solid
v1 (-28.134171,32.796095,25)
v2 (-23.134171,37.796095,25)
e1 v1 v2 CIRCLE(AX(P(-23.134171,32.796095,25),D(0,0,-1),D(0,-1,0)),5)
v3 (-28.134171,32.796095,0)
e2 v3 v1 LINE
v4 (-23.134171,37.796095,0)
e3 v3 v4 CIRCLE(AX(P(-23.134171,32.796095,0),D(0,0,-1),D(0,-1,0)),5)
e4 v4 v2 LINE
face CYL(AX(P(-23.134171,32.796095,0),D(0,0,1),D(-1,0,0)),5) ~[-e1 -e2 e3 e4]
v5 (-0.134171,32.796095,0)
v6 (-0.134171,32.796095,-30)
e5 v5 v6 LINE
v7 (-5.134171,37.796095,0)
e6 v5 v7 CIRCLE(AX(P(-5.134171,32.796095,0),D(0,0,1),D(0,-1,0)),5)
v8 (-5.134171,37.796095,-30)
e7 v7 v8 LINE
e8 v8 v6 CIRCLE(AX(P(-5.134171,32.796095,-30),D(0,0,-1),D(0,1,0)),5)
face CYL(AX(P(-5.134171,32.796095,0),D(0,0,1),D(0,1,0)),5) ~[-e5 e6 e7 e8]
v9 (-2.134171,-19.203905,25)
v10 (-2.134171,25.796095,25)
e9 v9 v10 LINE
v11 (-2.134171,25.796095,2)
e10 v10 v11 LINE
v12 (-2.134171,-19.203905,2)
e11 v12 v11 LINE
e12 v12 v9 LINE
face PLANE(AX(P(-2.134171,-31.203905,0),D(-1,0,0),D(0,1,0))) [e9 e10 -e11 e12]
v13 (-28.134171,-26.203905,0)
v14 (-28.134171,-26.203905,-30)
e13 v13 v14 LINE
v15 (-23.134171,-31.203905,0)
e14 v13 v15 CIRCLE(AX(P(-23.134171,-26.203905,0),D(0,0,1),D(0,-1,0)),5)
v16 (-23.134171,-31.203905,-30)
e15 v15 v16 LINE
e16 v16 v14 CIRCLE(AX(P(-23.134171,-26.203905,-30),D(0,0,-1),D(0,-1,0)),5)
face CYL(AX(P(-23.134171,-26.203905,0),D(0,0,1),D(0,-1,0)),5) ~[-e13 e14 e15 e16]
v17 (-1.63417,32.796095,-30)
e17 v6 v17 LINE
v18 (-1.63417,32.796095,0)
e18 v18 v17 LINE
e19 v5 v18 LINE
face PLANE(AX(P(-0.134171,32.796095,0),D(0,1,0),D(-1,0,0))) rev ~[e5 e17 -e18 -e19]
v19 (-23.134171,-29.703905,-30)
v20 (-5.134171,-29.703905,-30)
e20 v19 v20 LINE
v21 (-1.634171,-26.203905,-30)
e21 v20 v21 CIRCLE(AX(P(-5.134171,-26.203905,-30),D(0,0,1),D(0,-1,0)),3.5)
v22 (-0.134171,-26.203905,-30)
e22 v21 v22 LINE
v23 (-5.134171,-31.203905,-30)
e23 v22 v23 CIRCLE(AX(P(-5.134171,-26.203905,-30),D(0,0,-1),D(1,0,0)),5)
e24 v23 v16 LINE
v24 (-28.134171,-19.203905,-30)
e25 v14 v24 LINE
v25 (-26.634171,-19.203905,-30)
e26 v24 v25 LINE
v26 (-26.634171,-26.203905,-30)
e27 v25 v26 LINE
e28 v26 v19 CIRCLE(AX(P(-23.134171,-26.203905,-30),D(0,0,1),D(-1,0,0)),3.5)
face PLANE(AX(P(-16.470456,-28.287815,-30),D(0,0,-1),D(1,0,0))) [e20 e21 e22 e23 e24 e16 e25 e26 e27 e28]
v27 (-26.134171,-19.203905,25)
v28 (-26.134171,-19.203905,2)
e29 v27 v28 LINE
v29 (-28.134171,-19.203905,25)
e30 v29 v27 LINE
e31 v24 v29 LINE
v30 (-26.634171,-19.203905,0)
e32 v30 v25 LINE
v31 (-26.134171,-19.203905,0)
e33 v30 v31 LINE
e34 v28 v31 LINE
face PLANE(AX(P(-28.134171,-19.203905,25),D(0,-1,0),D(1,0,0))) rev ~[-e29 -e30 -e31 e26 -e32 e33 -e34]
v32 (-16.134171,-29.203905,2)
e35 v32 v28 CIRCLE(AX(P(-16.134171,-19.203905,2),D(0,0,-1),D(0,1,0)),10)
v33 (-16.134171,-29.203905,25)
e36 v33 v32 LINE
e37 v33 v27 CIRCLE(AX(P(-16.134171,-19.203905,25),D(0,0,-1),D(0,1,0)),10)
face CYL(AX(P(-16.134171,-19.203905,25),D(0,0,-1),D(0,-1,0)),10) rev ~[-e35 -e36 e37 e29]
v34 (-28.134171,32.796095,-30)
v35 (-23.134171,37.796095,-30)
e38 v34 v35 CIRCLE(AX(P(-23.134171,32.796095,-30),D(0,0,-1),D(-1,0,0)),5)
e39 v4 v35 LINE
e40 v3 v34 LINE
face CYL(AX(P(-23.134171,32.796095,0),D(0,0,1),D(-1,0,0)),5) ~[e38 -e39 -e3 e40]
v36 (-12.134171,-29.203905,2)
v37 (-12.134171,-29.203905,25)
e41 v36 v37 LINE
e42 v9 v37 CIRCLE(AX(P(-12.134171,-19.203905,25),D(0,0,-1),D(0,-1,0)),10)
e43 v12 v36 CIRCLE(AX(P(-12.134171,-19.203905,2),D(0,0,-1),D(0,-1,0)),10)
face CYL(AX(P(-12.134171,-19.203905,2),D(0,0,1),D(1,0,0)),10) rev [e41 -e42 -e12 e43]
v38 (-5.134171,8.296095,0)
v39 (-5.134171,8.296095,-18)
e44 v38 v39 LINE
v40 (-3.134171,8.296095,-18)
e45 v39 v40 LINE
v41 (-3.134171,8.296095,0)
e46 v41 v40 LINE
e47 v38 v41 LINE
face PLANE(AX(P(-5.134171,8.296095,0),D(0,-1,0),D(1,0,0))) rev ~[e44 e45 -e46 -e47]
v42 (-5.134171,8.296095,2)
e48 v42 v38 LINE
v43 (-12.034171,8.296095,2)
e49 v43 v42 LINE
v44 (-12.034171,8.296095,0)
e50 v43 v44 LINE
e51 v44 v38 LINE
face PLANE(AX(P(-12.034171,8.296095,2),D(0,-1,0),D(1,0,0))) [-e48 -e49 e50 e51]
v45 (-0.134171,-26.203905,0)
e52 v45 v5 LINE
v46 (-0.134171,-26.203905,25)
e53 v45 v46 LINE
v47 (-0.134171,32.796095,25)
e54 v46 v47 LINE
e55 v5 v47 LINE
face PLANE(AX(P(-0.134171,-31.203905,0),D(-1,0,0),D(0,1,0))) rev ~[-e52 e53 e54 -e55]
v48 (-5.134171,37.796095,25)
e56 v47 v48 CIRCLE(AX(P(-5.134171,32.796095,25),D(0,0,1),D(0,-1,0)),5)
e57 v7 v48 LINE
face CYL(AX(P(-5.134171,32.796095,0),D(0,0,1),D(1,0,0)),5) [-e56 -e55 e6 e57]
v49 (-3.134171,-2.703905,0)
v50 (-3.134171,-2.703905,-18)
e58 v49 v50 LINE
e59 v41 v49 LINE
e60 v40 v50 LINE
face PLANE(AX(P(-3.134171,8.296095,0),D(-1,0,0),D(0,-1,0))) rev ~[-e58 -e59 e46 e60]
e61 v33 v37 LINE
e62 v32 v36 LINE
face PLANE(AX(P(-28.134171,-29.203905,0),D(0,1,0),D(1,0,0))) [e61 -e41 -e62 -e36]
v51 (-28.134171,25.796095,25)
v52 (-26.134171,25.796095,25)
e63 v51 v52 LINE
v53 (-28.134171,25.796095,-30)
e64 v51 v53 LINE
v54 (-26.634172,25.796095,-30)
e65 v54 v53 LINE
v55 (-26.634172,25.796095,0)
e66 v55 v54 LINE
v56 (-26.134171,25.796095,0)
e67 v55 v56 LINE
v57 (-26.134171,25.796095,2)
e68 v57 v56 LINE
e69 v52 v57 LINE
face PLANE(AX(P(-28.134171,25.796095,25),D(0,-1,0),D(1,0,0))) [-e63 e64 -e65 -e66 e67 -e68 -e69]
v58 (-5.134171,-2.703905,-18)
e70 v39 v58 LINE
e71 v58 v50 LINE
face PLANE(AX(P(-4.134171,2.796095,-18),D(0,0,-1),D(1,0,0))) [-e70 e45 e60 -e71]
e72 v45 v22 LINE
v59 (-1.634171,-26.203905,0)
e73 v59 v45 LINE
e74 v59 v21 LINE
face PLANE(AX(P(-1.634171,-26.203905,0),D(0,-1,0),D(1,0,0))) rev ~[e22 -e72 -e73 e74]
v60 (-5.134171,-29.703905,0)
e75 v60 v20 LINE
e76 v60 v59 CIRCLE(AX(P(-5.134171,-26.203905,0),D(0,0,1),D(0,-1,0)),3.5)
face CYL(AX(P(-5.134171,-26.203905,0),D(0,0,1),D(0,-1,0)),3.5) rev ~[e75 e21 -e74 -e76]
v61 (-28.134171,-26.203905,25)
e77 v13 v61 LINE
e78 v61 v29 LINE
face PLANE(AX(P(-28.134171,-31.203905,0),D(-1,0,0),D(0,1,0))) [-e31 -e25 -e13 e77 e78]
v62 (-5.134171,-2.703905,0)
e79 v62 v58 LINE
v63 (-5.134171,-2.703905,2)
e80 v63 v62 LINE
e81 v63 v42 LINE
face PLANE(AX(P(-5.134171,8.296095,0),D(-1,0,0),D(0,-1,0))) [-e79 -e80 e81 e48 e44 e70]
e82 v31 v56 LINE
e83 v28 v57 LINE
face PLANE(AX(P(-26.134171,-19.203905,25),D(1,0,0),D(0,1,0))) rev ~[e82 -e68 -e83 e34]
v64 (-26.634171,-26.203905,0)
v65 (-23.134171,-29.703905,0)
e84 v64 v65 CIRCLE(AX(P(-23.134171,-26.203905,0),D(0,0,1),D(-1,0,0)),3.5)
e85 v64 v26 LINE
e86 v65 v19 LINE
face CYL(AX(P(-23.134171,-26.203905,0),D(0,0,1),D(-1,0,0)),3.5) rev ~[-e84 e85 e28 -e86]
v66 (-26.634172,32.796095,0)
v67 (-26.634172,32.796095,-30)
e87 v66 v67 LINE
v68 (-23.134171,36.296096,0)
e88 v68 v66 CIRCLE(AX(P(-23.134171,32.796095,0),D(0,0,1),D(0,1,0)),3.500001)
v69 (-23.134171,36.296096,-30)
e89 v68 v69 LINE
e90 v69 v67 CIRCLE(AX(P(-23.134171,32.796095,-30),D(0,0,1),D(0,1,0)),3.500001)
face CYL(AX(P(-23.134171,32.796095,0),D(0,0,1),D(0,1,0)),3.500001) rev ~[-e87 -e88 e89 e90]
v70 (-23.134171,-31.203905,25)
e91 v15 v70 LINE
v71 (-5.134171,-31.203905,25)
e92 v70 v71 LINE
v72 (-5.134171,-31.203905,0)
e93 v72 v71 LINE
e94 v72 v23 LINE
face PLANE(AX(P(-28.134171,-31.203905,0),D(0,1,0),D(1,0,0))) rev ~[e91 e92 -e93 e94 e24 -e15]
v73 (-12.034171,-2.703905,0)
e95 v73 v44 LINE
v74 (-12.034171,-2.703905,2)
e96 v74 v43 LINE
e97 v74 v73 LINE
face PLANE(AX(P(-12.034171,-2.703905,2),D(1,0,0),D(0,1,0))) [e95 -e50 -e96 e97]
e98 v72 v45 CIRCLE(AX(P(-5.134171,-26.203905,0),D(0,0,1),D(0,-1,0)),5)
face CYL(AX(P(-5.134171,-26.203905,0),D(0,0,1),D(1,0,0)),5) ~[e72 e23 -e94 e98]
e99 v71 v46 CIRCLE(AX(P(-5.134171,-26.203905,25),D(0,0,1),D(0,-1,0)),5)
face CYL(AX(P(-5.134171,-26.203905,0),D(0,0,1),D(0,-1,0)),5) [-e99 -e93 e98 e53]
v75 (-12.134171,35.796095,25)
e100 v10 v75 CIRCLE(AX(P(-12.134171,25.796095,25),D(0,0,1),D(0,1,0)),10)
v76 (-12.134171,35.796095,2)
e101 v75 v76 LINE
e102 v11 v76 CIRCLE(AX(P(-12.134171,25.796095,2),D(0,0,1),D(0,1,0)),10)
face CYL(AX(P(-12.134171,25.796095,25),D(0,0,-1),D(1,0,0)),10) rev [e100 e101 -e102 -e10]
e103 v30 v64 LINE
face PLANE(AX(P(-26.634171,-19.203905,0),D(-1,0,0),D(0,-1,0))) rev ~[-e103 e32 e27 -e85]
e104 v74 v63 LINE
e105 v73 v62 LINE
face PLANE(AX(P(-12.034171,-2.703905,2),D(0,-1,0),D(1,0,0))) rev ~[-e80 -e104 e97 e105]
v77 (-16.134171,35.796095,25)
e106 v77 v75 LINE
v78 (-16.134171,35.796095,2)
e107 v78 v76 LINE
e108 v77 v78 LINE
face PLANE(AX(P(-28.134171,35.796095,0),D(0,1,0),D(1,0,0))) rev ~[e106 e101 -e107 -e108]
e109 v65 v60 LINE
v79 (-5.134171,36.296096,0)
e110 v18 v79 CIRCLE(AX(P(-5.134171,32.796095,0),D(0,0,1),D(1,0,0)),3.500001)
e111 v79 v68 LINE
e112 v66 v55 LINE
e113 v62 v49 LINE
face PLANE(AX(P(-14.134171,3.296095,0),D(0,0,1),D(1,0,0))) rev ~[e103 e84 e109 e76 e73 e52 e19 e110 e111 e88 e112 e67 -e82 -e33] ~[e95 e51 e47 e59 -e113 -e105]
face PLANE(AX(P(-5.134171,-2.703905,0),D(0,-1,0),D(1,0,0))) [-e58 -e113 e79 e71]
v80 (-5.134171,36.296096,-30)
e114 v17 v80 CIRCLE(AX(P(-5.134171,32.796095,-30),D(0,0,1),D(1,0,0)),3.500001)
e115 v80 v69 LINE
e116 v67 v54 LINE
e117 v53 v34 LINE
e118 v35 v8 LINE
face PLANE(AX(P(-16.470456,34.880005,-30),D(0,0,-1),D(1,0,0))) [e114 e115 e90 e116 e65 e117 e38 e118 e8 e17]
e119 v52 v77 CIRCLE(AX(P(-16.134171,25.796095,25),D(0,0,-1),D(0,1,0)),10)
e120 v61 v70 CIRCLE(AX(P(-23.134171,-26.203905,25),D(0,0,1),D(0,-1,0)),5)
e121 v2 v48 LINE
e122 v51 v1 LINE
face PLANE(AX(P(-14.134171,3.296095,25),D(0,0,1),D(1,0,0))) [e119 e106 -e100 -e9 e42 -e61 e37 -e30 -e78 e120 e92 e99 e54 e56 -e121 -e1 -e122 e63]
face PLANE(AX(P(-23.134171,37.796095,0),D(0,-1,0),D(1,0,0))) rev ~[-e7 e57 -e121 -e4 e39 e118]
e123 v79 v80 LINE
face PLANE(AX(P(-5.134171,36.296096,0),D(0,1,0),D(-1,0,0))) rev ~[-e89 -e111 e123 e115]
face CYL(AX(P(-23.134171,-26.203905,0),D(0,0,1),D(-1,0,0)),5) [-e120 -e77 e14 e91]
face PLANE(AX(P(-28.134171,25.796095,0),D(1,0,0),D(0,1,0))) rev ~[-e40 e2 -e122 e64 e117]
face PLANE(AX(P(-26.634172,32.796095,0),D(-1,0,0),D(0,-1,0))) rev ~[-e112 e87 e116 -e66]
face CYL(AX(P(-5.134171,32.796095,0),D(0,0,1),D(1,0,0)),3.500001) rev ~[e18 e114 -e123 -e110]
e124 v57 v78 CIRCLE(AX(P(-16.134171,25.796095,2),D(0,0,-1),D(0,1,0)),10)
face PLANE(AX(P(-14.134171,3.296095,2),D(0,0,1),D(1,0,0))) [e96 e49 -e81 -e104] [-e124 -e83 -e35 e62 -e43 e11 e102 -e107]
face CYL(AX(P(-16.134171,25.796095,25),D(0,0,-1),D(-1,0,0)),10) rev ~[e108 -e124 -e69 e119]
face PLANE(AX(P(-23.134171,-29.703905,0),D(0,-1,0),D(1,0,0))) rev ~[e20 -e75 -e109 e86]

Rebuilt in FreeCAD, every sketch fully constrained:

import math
import FreeCAD as App
import Part
import Sketcher
from FreeCAD import Vector
Q = App.Units.Quantity


def edges_at(feature, points):
    """Names of the edges that pass closest to the given points."""
    edges = feature.Shape.Edges
    near = lambda p: min(range(len(edges)), key=lambda i: edges[i].distToShape(Part.Vertex(*p))[0])
    return sorted({f"Edge{near(p) + 1}" for p in points})


def faces_at(feature, points):
    """Names of the faces that lie closest to the given points."""
    faces = feature.Shape.Faces
    near = lambda p: min(range(len(faces)), key=lambda i: faces[i].distToShape(Part.Vertex(*p))[0])
    return sorted({f"Face{near(p) + 1}" for p in points})


def add_polygon(sketch, points):
    """Adds a closed chain of lines whose ends are joined by coincident constraints."""
    first, n = sketch.GeometryCount, len(points)
    for a, b in zip(points, points[1:] + points[:1]):
        sketch.addGeometry(Part.LineSegment(App.Vector(*a, 0), App.Vector(*b, 0)), False)
    for i in range(n):
        sketch.addConstraint(Sketcher.Constraint("Coincident", first + i, 2, first + (i + 1) % n, 1))

doc = App.newDocument("Part")
body = doc.addObject("PartDesign::Body", "Body")

sketch1 = doc.addObject("Sketcher::SketchObject", "Sketch")
body.addObject(sketch1)
sketch1.AttachmentSupport = (doc.XY_Plane, [""])
sketch1.MapMode = "FlatFace"
add_polygon(sketch1, [(-28.134171, 37.796095), (-28.134171, -31.203905), (-0.134171, -31.203905), (-0.134171, 37.796095)])
sketch1.addConstraint(Sketcher.Constraint("Vertical", 0))
sketch1.addConstraint(Sketcher.Constraint("Horizontal", 1))
sketch1.addConstraint(Sketcher.Constraint("Vertical", 2))
sketch1.addConstraint(Sketcher.Constraint("Horizontal", 3))
sketch1.addConstraint(Sketcher.Constraint("DistanceX", 1, 1, 1, 2, Q("28 mm")))
sketch1.addConstraint(Sketcher.Constraint("DistanceY", 0, 2, 0, 1, Q("69 mm")))
sketch1.addConstraint(Sketcher.Constraint("DistanceX", 0, 2, -1, 1, Q("28.134171 mm")))
sketch1.addConstraint(Sketcher.Constraint("DistanceY", 0, 2, -1, 1, Q("31.203905 mm")))
pad1 = doc.addObject("PartDesign::Pad", "Pad")
body.addObject(pad1)
pad1.Profile = sketch1
pad1.Length = 25
doc.recompute()

thickness = doc.addObject("PartDesign::Thickness", "Thickness")
body.addObject(thickness)
thickness.Base = (pad1, faces_at(pad1, [(-14.134, 3.296, 25)]))
thickness.Value = 2
thickness.Reversed = True
thickness.Join = "Arc"
doc.recompute()

fillet = doc.addObject("PartDesign::Fillet", "Fillet")
body.addObject(fillet)
fillet.Base = (thickness, edges_at(thickness, [
    (-0.134, -31.204, 12.5),
    (-28.134, -31.204, 12.5),
    (-0.134, 37.796, 12.5),
    (-28.134, 37.796, 12.5),
]))
fillet.Radius = 5
doc.recompute()

fillet2 = doc.addObject("PartDesign::Fillet", "Fillet001")
body.addObject(fillet2)
fillet2.Base = (fillet, edges_at(fillet, [
    (-26.134, 35.796, 13.5),
    (-26.134, -29.204, 13.5),
    (-2.134, -29.204, 13.5),
    (-2.134, 35.796, 13.5),
]))
fillet2.Radius = 10

sketch2 = doc.addObject("Sketcher::SketchObject", "Sketch001")
body.addObject(sketch2)
sketch2.AttachmentSupport = (doc.XY_Plane, [""])
sketch2.MapMode = "FlatFace"
sketch2.AttachmentOffset = App.Placement(Vector(0, 0, 2), App.Rotation())
add_polygon(sketch2, [(-12.034171, 8.296095), (-12.034171, -2.703905), (-5.134171, -2.703905), (-5.134171, 8.296095)])
sketch2.addConstraint(Sketcher.Constraint("Vertical", 0))
sketch2.addConstraint(Sketcher.Constraint("Horizontal", 1))
sketch2.addConstraint(Sketcher.Constraint("Vertical", 2))
sketch2.addConstraint(Sketcher.Constraint("Horizontal", 3))
sketch2.addConstraint(Sketcher.Constraint("DistanceY", 0, 2, 0, 1, Q("11 mm")))
sketch2.addConstraint(Sketcher.Constraint("DistanceX", 1, 1, 1, 2, Q("6.9 mm")))
sketch2.addConstraint(Sketcher.Constraint("DistanceX", 0, 2, -1, 1, Q("12.034171 mm")))
sketch2.addConstraint(Sketcher.Constraint("DistanceY", 0, 2, -1, 1, Q("2.703905 mm")))
pocket1 = doc.addObject("PartDesign::Pocket", "Pocket")
body.addObject(pocket1)
pocket1.Profile = sketch2
pocket1.Length = 25

sketch3 = doc.addObject("Sketcher::SketchObject", "Sketch002")
body.addObject(sketch3)
sketch3.AttachmentSupport = (doc.XY_Plane, [""])
sketch3.MapMode = "FlatFace"
sketch3.AttachmentOffset = App.Placement(Vector(0, 0, 25), App.Rotation())
add_polygon(sketch3, [(-28.134171, 25.796095), (-28.134171, -19.203905), (-26.134171, -19.203905), (-26.134171, 25.796095)])
sketch3.addConstraint(Sketcher.Constraint("Vertical", 0))
sketch3.addConstraint(Sketcher.Constraint("Horizontal", 1))
sketch3.addConstraint(Sketcher.Constraint("Vertical", 2))
sketch3.addConstraint(Sketcher.Constraint("Horizontal", 3))
sketch3.addConstraint(Sketcher.Constraint("DistanceX", 1, 1, 1, 2, Q("2 mm")))
sketch3.addConstraint(Sketcher.Constraint("DistanceY", 0, 2, 0, 1, Q("45 mm")))
sketch3.addConstraint(Sketcher.Constraint("DistanceX", 0, 2, -1, 1, Q("28.134171 mm")))
sketch3.addConstraint(Sketcher.Constraint("DistanceY", 0, 2, -1, 1, Q("19.203905 mm")))
pocket2 = doc.addObject("PartDesign::Pocket", "Pocket001")
body.addObject(pocket2)
pocket2.Profile = sketch3
pocket2.Length = 25

sketch4 = doc.addObject("Sketcher::SketchObject", "Sketch003")
body.addObject(sketch4)
sketch4.AttachmentSupport = (doc.XY_Plane, [""])
sketch4.MapMode = "FlatFace"
add_polygon(sketch4, [(-5.134171, -2.703905), (-5.134171, 8.296095), (-3.134171, 8.296095), (-3.134171, -2.703905)])
sketch4.addConstraint(Sketcher.Constraint("Vertical", 0))
sketch4.addConstraint(Sketcher.Constraint("Horizontal", 1))
sketch4.addConstraint(Sketcher.Constraint("Vertical", 2))
sketch4.addConstraint(Sketcher.Constraint("Horizontal", 3))
sketch4.addConstraint(Sketcher.Constraint("DistanceX", 1, 1, 1, 2, Q("2 mm")))
sketch4.addConstraint(Sketcher.Constraint("DistanceY", 0, 1, 0, 2, Q("11 mm")))
sketch4.addConstraint(Sketcher.Constraint("DistanceX", 0, 2, -1, 1, Q("5.134171 mm")))
sketch4.addConstraint(Sketcher.Constraint("DistanceY", -1, 1, 0, 2, Q("8.296095 mm")))
pad2 = doc.addObject("PartDesign::Pad", "Pad001")
body.addObject(pad2)
pad2.Profile = sketch4
pad2.Length = 18
pad2.Reversed = True

sketch5 = doc.addObject("Sketcher::SketchObject", "Sketch004")
body.addObject(sketch5)
sketch5.AttachmentSupport = (doc.XY_Plane, [""])
sketch5.MapMode = "FlatFace"
sketch5.addGeometry(Part.ArcOfCircle(Part.Circle(Vector(-5.134171, 32.796095, 0), Vector(0, 0, 1), 3.500001), math.radians(0), math.radians(90)), False)
sketch5.addGeometry(Part.LineSegment(Vector(-5.134171, 36.296096, 0), Vector(-23.134171, 36.296096, 0)), False)
sketch5.addGeometry(Part.ArcOfCircle(Part.Circle(Vector(-23.134171, 32.796095, 0), Vector(0, 0, 1), 3.500001), math.radians(90), math.radians(180)), False)
sketch5.addGeometry(Part.LineSegment(Vector(-26.634172, 32.796095, 0), Vector(-26.634172, 25.796095, 0)), False)
sketch5.addGeometry(Part.LineSegment(Vector(-26.634172, 25.796095, 0), Vector(-28.134171, 25.796095, 0)), False)
sketch5.addGeometry(Part.LineSegment(Vector(-28.134171, 25.796095, 0), Vector(-28.134171, 32.796095, 0)), False)
sketch5.addGeometry(Part.ArcOfCircle(Part.Circle(Vector(-23.134171, 32.796095, 0), Vector(0, 0, 1), 5), math.radians(90), math.radians(180)), False)
sketch5.addGeometry(Part.LineSegment(Vector(-23.134171, 37.796095, 0), Vector(-5.134171, 37.796095, 0)), False)
sketch5.addGeometry(Part.ArcOfCircle(Part.Circle(Vector(-5.134171, 32.796095, 0), Vector(0, 0, 1), 5), math.radians(0), math.radians(90)), False)
sketch5.addGeometry(Part.LineSegment(Vector(-0.134171, 32.796095, 0), Vector(-1.63417, 32.796095, 0)), False)
sketch5.addGeometry(Part.LineSegment(Vector(-1.634171, -26.203905, 0), Vector(-0.134171, -26.203905, 0)), False)
sketch5.addGeometry(Part.ArcOfCircle(Part.Circle(Vector(-5.134171, -26.203905, 0), Vector(0, 0, 1), 5), math.radians(-90), math.radians(0)), False)
sketch5.addGeometry(Part.LineSegment(Vector(-5.134171, -31.203905, 0), Vector(-23.134171, -31.203905, 0)), False)
sketch5.addGeometry(Part.ArcOfCircle(Part.Circle(Vector(-23.134171, -26.203905, 0), Vector(0, 0, 1), 5), math.radians(180), math.radians(270)), False)
sketch5.addGeometry(Part.LineSegment(Vector(-28.134171, -26.203905, 0), Vector(-28.134171, -19.203905, 0)), False)
sketch5.addGeometry(Part.LineSegment(Vector(-28.134171, -19.203905, 0), Vector(-26.634171, -19.203905, 0)), False)
sketch5.addGeometry(Part.LineSegment(Vector(-26.634171, -19.203905, 0), Vector(-26.634171, -26.203905, 0)), False)
sketch5.addGeometry(Part.ArcOfCircle(Part.Circle(Vector(-23.134171, -26.203905, 0), Vector(0, 0, 1), 3.5), math.radians(180), math.radians(270)), False)
sketch5.addGeometry(Part.LineSegment(Vector(-23.134171, -29.703905, 0), Vector(-5.134171, -29.703905, 0)), False)
sketch5.addGeometry(Part.ArcOfCircle(Part.Circle(Vector(-5.134171, -26.203905, 0), Vector(0, 0, 1), 3.5), math.radians(-90), math.radians(0)), False)
sketch5.addConstraint(Sketcher.Constraint("Tangent", 0, 2, 1, 1))
sketch5.addConstraint(Sketcher.Constraint("Tangent", 1, 2, 2, 1))
sketch5.addConstraint(Sketcher.Constraint("Tangent", 2, 2, 3, 1))
sketch5.addConstraint(Sketcher.Constraint("Coincident", 3, 2, 4, 1))
sketch5.addConstraint(Sketcher.Constraint("Coincident", 4, 2, 5, 1))
sketch5.addConstraint(Sketcher.Constraint("Tangent", 5, 2, 6, 2))
sketch5.addConstraint(Sketcher.Constraint("Tangent", 6, 1, 7, 1))
sketch5.addConstraint(Sketcher.Constraint("Tangent", 7, 2, 8, 2))
sketch5.addConstraint(Sketcher.Constraint("Coincident", 8, 1, 9, 1))
sketch5.addConstraint(Sketcher.Constraint("Coincident", 9, 2, 0, 1))
sketch5.addConstraint(Sketcher.Constraint("Coincident", 10, 2, 11, 2))
sketch5.addConstraint(Sketcher.Constraint("Tangent", 11, 1, 12, 1))
sketch5.addConstraint(Sketcher.Constraint("Tangent", 12, 2, 13, 2))
sketch5.addConstraint(Sketcher.Constraint("Tangent", 13, 1, 14, 1))
sketch5.addConstraint(Sketcher.Constraint("Coincident", 14, 2, 15, 1))
sketch5.addConstraint(Sketcher.Constraint("Coincident", 15, 2, 16, 1))
sketch5.addConstraint(Sketcher.Constraint("Tangent", 16, 2, 17, 1))
sketch5.addConstraint(Sketcher.Constraint("Tangent", 17, 2, 18, 1))
sketch5.addConstraint(Sketcher.Constraint("Tangent", 18, 2, 19, 1))
sketch5.addConstraint(Sketcher.Constraint("Coincident", 19, 2, 10, 1))
sketch5.addConstraint(Sketcher.Constraint("Horizontal", 1))
sketch5.addConstraint(Sketcher.Constraint("Vertical", 3))
sketch5.addConstraint(Sketcher.Constraint("Horizontal", 4))
sketch5.addConstraint(Sketcher.Constraint("Vertical", 5))
sketch5.addConstraint(Sketcher.Constraint("Horizontal", 7))
sketch5.addConstraint(Sketcher.Constraint("Horizontal", 9))
sketch5.addConstraint(Sketcher.Constraint("Horizontal", 10))
sketch5.addConstraint(Sketcher.Constraint("Horizontal", 12))
sketch5.addConstraint(Sketcher.Constraint("Vertical", 14))
sketch5.addConstraint(Sketcher.Constraint("Horizontal", 15))
sketch5.addConstraint(Sketcher.Constraint("Vertical", 16))
sketch5.addConstraint(Sketcher.Constraint("Horizontal", 18))
sketch5.addConstraint(Sketcher.Constraint("Coincident", 6, 3, 2, 3))
sketch5.addConstraint(Sketcher.Constraint("Coincident", 8, 3, 0, 3))
sketch5.addConstraint(Sketcher.Constraint("Coincident", 17, 3, 13, 3))
sketch5.addConstraint(Sketcher.Constraint("Coincident", 19, 3, 11, 3))
sketch5.addConstraint(Sketcher.Constraint("Equal", 0, 2))
sketch5.addConstraint(Sketcher.Constraint("Equal", 8, 11))
sketch5.addConstraint(Sketcher.Constraint("Equal", 11, 13))
sketch5.addConstraint(Sketcher.Constraint("Equal", 2, 17))
sketch5.addConstraint(Sketcher.Constraint("Horizontal", 5, 2, 8, 1))
sketch5.addConstraint(Sketcher.Constraint("Horizontal", 19, 3, 10, 2))
sketch5.addConstraint(Sketcher.Constraint("Vertical", 8, 3, 11, 3))
sketch5.addConstraint(Sketcher.Constraint("Vertical", 6, 3, 13, 3))
sketch5.addConstraint(Sketcher.Constraint("Equal", 5, 14))
sketch5.addConstraint(Sketcher.Constraint("Radius", 6, Q("5 mm")))
sketch5.addConstraint(Sketcher.Constraint("Radius", 0, Q("3.500001 mm")))
sketch5.addConstraint(Sketcher.Constraint("DistanceX", 1, 2, 1, 1, Q("18 mm")))
sketch5.addConstraint(Sketcher.Constraint("DistanceY", 3, 2, 3, 1, Q("7 mm")))
sketch5.addConstraint(Sketcher.Constraint("DistanceY", 11, 3, 0, 3, Q("59 mm")))
sketch5.addConstraint(Sketcher.Constraint("DistanceX", 0, 3, -1, 1, Q("5.134171 mm")))
sketch5.addConstraint(Sketcher.Constraint("DistanceY", -1, 1, 0, 3, Q("32.796095 mm")))
pad3 = doc.addObject("PartDesign::Pad", "Pad002")
body.addObject(pad3)
pad3.Profile = sketch5
pad3.Length = 30
pad3.Reversed = True

doc.recompute()
